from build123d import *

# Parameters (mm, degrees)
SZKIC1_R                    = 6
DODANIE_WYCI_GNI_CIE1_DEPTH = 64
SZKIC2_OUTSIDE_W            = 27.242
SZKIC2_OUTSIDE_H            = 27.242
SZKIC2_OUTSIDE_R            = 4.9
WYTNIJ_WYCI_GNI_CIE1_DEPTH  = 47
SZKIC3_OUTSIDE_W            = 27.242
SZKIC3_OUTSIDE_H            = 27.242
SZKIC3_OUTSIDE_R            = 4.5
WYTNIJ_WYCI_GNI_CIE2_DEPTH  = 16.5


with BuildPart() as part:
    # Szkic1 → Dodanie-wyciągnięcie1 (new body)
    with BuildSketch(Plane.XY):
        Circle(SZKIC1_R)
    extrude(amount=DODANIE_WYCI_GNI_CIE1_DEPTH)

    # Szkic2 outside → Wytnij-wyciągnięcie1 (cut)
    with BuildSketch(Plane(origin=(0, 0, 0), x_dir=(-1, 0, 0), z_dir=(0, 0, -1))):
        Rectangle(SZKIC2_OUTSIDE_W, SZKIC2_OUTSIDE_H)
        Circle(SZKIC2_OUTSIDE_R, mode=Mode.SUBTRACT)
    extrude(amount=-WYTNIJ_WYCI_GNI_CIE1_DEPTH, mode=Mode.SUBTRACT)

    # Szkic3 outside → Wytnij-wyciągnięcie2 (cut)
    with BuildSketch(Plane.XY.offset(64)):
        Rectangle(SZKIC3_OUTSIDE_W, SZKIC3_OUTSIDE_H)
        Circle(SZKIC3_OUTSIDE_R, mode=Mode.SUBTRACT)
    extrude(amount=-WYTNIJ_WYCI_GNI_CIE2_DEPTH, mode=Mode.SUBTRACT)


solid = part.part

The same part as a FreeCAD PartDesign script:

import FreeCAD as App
import Part
import Sketcher

V = App.Vector
Q = App.Units.Quantity

doc = App.newDocument("Part")
params = doc.addObject("Spreadsheet::Sheet", "Params")
for row, (alias, value) in enumerate([
    ("sketch1_diameter", "12 mm"),
    ("pad1_length", "64 mm"),
    ("sketch2_diameter", "9.8 mm"),
    ("pocket1_length", "47 mm"),
    ("sketch3_diameter", "9 mm"),
    ("pocket2_length", "16.5 mm"),
], start=1):
    params.set(f"A{row}", alias)
    params.set(f"B{row}", "=" + value)
    params.setAlias(f"B{row}", alias)

body = doc.addObject("PartDesign::Body", "Body")

# Sketch on XY plane
sketch1 = body.newObject("Sketcher::SketchObject", "Sketch")
sketch1.AttachmentSupport = (doc.getObject("XY_Plane"), [""])
sketch1.MapMode = "FlatFace"
sketch1.addGeometry(Part.Circle(V(0, 0, 0), V(0, 0, 1), 6), False)
sketch1.addConstraint([
    Sketcher.Constraint("Coincident", 0, 3, -1, 1),
    Sketcher.Constraint("Diameter", 0, Q("12 mm")),
])
sketch1.setExpression("Constraints[1]", "Params.sketch1_diameter")
pad1 = body.newObject("PartDesign::Pad", "Pad")
pad1.Profile = sketch1
pad1.setExpression("Length", "Params.pad1_length")

# Sketch on XY plane
sketch2 = body.newObject("Sketcher::SketchObject", "Sketch001")
sketch2.AttachmentSupport = (doc.getObject("XY_Plane"), [""])
sketch2.MapMode = "FlatFace"
sketch2.addGeometry([
    Part.LineSegment(V(13.6, 13.6, 0), V(13.6, -13.6, 0)),  # 0
    Part.LineSegment(V(13.6, -13.6, 0), V(-13.6, -13.6, 0)),  # 1
    Part.LineSegment(V(-13.6, -13.6, 0), V(-13.6, 13.6, 0)),  # 2
    Part.LineSegment(V(-13.6, 13.6, 0), V(13.6, 13.6, 0)),  # 3
    Part.Circle(V(0, 0, 0), V(0, 0, 1), 4.9),  # 4
], False)
sketch2.addConstraint([
    Sketcher.Constraint("Coincident", 0, 2, 1, 1),
    Sketcher.Constraint("Coincident", 1, 2, 2, 1),
    Sketcher.Constraint("Coincident", 2, 2, 3, 1),
    Sketcher.Constraint("Coincident", 3, 2, 0, 1),
    Sketcher.Constraint("Vertical", 0),
    Sketcher.Constraint("Horizontal", 1),
    Sketcher.Constraint("Vertical", 2),
    Sketcher.Constraint("Horizontal", 3),
    Sketcher.Constraint("Coincident", 4, 3, -1, 1),
    Sketcher.Constraint("Symmetric", 0, 2, 2, 2, -1, 1),
    Sketcher.Constraint("Equal", 3, 0),
    Sketcher.Constraint("Diameter", 4, Q("9.8 mm")),
    Sketcher.Constraint("DistanceX", 1, 2, 1, 1, Q("27.242 mm")),
])
sketch2.setExpression("Constraints[11]", "Params.sketch2_diameter")
pocket1 = body.newObject("PartDesign::Pocket", "Pocket")
pocket1.Profile = sketch2
pocket1.setExpression("Length", "Params.pocket1_length")
pocket1.Reversed = True

# Sketch on XY plane
sketch3 = body.newObject("Sketcher::SketchObject", "Sketch002")
sketch3.AttachmentSupport = (doc.getObject("XY_Plane"), [""])
sketch3.MapMode = "FlatFace"
sketch3.AttachmentOffset = App.Placement(V(0, 0, 64), App.Rotation())
sketch3.addGeometry([
    Part.LineSegment(V(-13.6, 13.6, 0), V(-13.6, -13.6, 0)),  # 0
    Part.LineSegment(V(-13.6, -13.6, 0), V(13.6, -13.6, 0)),  # 1
    Part.LineSegment(V(13.6, -13.6, 0), V(13.6, 13.6, 0)),  # 2
    Part.LineSegment(V(13.6, 13.6, 0), V(-13.6, 13.6, 0)),  # 3
    Part.Circle(V(0, 0, 0), V(0, 0, 1), 4.5),  # 4
], False)
sketch3.addConstraint([
    Sketcher.Constraint("Coincident", 0, 2, 1, 1),
    Sketcher.Constraint("Coincident", 1, 2, 2, 1),
    Sketcher.Constraint("Coincident", 2, 2, 3, 1),
    Sketcher.Constraint("Coincident", 3, 2, 0, 1),
    Sketcher.Constraint("Vertical", 0),
    Sketcher.Constraint("Horizontal", 1),
    Sketcher.Constraint("Vertical", 2),
    Sketcher.Constraint("Horizontal", 3),
    Sketcher.Constraint("Coincident", 4, 3, -1, 1),
    Sketcher.Constraint("Symmetric", 0, 2, 2, 2, -1, 1),
    Sketcher.Constraint("Equal", 3, 0),
    Sketcher.Constraint("Diameter", 4, Q("9 mm")),
    Sketcher.Constraint("DistanceX", 1, 1, 1, 2, Q("27.242 mm")),
])
sketch3.setExpression("Constraints[11]", "Params.sketch3_diameter")
pocket2 = body.newObject("PartDesign::Pocket", "Pocket001")
pocket2.Profile = sketch3
pocket2.setExpression("Length", "Params.pocket2_length")

doc.recompute()
